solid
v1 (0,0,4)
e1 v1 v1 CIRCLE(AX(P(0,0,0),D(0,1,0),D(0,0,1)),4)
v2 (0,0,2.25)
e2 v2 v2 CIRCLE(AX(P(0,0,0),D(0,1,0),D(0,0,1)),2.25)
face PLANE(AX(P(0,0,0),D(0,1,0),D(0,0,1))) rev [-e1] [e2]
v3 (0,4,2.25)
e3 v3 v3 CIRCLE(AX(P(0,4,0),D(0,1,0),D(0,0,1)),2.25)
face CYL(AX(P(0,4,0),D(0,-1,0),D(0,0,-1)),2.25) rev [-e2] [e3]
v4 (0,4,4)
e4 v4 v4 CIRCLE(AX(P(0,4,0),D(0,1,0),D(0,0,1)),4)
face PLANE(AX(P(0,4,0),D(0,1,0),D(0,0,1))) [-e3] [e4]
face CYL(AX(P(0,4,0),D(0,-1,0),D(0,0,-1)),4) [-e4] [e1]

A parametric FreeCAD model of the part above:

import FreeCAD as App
import Part
import Sketcher
from FreeCAD import Vector
Q = App.Units.Quantity

doc = App.newDocument("Part")
params = doc.addObject("Spreadsheet::Sheet", "Params")
for row, (alias, value) in enumerate([
    ("sketch1_diameter", "8 mm"),
    ("sketch1_diameter2", "4.5 mm"),
    ("pad1_length", "4 mm"),
], start=1):
    params.set(f"A{row}", alias)
    params.set(f"B{row}", "=" + value)
    params.setAlias(f"B{row}", alias)

body = doc.addObject("PartDesign::Body", "Body")

sketch1 = doc.addObject("Sketcher::SketchObject", "Sketch")
body.addObject(sketch1)
sketch1.AttachmentSupport = (doc.XZ_Plane, [""])
sketch1.MapMode = "FlatFace"
sketch1.addGeometry(Part.Circle(Vector(0, 0, 0), Vector(0, 0, 1), 4), False)
sketch1.addGeometry(Part.Circle(Vector(0, 0, 0), Vector(0, 0, 1), 2.25), False)
sketch1.addConstraint(Sketcher.Constraint("Coincident", 0, 3, -1, 1))
sketch1.addConstraint(Sketcher.Constraint("Coincident", 1, 3, -1, 1))
sketch1.addConstraint(Sketcher.Constraint("Diameter", 0, Q("8 mm")))
sketch1.addConstraint(Sketcher.Constraint("Diameter", 1, Q("4.5 mm")))
sketch1.setExpression("Constraints[2]", "Params.sketch1_diameter")
sketch1.setExpression("Constraints[3]", "Params.sketch1_diameter2")
pad1 = doc.addObject("PartDesign::Pad", "Pad")
body.addObject(pad1)
pad1.Profile = sketch1
pad1.setExpression("Length", "Params.pad1_length")
pad1.Reversed = True

doc.recompute()
